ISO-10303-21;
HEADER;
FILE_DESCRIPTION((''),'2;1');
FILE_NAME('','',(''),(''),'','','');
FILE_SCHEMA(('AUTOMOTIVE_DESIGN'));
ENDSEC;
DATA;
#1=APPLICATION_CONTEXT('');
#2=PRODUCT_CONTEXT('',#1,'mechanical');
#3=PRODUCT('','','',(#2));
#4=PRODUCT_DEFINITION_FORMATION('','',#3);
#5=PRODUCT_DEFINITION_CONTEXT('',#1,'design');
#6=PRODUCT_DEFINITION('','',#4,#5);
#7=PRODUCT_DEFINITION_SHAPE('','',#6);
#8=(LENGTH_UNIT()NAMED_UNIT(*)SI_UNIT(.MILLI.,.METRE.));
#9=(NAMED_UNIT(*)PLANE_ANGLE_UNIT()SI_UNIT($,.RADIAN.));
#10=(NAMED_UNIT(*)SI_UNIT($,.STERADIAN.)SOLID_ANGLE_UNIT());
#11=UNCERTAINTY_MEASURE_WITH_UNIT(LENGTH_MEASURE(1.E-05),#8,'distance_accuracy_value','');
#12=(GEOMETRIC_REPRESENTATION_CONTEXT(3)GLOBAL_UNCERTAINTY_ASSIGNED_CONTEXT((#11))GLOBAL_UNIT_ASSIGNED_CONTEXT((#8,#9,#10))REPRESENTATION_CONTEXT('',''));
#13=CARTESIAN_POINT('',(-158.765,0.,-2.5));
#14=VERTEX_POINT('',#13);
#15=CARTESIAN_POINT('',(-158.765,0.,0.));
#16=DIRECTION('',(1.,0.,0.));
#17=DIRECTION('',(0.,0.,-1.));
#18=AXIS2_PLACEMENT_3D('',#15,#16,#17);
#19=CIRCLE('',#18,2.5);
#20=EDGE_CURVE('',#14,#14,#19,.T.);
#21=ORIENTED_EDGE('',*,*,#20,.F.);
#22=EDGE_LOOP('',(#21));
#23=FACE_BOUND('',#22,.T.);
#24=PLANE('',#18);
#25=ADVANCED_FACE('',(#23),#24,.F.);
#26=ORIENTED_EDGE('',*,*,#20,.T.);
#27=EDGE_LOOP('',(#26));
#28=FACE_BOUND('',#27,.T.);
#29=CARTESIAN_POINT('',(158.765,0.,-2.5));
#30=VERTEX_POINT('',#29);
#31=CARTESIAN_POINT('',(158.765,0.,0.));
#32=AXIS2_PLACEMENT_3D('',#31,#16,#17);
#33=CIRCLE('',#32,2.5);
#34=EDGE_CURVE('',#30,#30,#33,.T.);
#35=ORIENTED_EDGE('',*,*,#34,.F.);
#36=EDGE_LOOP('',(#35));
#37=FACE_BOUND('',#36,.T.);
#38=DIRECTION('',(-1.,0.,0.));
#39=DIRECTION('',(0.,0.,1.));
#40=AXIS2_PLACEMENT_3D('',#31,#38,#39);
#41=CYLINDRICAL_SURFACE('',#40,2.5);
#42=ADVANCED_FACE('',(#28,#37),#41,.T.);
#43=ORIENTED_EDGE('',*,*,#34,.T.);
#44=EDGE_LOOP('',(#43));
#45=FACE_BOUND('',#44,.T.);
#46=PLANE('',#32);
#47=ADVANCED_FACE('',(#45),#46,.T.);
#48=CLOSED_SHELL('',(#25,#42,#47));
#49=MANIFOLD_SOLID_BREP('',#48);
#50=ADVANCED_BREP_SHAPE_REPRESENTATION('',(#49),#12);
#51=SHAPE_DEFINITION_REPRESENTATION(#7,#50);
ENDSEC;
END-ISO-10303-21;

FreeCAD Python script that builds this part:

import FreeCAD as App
import Part
import Sketcher
from FreeCAD import Vector
Q = App.Units.Quantity

doc = App.newDocument("Part")
body = doc.addObject("PartDesign::Body", "Body")

# Sketch on YZ plane
sketch1 = body.newObject("Sketcher::SketchObject", "Sketch")
sketch1.AttachmentSupport = (doc.getObject("YZ_Plane"), [""])
sketch1.MapMode = "FlatFace"
sketch1.addGeometry(Part.Circle(Vector(0, 0, 0), Vector(0, 0, 1), 2.5), False)
sketch1.addConstraint([
    Sketcher.Constraint("Coincident", 0, 3, -1, 1),
    Sketcher.Constraint("Diameter", 0, Q("5 mm")),
])
pad1 = body.newObject("PartDesign::Pad", "Pad")
pad1.Profile = sketch1
pad1.Length = 317.53
pad1.Midplane = True

doc.recompute()
